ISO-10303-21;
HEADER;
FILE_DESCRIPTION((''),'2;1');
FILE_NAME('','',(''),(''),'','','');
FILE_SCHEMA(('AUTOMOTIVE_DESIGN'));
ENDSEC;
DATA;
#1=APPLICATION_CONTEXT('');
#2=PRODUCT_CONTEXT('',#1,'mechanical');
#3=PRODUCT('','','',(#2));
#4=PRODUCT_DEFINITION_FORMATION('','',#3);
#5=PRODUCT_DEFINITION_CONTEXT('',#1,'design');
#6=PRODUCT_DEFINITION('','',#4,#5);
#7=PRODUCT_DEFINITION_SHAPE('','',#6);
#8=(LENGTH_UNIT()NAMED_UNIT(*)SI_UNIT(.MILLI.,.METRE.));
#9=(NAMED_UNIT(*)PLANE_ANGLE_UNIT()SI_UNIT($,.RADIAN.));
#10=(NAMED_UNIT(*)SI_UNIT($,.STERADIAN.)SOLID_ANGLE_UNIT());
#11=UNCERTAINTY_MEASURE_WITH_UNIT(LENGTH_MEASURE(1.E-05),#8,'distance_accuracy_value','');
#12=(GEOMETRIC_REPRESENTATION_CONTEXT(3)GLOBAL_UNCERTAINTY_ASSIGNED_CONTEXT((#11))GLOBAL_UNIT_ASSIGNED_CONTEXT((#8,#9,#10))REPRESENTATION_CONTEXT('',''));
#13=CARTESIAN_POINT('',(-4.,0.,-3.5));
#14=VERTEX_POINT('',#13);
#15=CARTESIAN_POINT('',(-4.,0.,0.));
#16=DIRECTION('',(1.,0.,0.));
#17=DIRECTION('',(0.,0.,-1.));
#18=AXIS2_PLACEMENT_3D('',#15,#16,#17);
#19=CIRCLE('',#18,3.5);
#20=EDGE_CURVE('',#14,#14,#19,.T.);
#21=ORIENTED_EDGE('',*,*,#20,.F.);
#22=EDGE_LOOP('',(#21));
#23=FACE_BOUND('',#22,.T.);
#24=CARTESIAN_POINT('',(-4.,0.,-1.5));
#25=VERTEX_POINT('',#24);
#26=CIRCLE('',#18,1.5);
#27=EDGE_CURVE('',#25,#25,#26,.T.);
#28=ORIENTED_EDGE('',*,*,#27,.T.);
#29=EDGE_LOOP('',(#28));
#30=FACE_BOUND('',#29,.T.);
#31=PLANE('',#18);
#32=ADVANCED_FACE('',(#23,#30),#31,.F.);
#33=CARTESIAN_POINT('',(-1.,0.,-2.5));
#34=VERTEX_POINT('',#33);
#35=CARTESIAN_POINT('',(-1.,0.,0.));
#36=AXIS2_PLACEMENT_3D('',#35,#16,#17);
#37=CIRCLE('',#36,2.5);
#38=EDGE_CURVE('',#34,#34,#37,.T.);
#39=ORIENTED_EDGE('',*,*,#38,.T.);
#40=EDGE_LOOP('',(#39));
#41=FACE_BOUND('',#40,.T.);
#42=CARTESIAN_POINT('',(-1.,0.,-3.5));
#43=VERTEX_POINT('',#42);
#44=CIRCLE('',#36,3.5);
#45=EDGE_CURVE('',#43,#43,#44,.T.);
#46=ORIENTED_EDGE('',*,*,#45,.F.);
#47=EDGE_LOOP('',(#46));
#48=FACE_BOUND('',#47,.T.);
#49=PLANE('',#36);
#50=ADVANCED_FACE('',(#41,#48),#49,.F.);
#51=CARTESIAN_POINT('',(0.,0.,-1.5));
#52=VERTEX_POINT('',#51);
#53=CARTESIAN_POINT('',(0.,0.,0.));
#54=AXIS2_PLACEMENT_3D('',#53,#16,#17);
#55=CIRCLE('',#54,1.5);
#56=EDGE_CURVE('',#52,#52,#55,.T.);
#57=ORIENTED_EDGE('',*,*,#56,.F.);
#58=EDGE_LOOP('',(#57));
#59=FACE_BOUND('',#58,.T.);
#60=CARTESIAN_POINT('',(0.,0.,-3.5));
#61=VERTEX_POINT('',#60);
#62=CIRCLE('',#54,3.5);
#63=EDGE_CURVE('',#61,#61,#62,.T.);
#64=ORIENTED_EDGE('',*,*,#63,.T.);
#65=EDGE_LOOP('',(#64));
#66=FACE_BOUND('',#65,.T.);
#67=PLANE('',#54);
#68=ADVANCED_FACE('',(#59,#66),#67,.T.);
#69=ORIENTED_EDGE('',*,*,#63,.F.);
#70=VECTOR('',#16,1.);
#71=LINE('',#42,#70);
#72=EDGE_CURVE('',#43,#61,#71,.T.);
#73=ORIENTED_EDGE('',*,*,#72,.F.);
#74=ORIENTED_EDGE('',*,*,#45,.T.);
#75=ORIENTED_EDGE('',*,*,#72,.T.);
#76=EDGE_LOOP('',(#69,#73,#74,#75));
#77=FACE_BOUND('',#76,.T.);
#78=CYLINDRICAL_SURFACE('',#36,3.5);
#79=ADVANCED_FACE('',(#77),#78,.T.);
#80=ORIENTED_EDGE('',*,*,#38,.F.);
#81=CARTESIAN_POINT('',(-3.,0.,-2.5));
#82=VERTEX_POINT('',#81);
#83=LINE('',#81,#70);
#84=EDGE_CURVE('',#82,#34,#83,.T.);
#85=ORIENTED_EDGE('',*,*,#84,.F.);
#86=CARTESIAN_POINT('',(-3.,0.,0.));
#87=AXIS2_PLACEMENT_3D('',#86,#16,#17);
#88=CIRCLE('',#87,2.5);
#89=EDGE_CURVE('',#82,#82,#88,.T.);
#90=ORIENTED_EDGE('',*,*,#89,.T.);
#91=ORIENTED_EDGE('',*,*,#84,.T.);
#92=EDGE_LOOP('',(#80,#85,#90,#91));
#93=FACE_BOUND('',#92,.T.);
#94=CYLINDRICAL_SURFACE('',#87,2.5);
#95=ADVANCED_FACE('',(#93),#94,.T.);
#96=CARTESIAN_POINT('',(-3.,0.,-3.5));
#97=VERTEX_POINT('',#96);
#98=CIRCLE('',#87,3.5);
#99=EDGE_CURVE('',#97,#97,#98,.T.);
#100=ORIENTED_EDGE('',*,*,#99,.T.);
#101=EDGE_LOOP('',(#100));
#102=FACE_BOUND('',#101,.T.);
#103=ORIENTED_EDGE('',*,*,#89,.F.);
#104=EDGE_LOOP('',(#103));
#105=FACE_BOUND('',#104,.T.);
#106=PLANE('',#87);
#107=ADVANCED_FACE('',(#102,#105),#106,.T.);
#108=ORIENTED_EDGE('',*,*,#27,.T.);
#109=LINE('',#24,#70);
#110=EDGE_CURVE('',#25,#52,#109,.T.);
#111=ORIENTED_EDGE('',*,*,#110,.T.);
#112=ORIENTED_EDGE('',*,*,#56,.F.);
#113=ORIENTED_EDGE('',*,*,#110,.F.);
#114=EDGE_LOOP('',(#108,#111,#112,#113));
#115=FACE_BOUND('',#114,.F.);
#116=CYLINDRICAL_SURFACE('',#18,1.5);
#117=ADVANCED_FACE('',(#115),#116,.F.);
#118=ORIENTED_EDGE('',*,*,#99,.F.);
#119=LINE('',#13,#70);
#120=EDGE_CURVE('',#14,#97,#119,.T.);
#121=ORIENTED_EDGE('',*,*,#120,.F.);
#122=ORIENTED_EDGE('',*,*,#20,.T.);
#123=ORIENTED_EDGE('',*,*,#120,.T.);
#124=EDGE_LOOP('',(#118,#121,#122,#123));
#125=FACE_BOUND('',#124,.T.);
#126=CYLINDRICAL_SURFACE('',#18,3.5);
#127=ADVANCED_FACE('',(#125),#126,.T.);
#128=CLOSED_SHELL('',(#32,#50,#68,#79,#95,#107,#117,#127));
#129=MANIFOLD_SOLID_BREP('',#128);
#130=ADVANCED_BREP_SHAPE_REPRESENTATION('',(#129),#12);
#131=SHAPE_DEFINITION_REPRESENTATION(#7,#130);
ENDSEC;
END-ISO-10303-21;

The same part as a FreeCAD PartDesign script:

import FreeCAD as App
import Part
import Sketcher
from FreeCAD import Vector
Q = App.Units.Quantity


def add_polygon(sketch, points):
    """Adds a closed chain of lines whose ends are joined by coincident constraints."""
    first, n = sketch.GeometryCount, len(points)
    for a, b in zip(points, points[1:] + points[:1]):
        sketch.addGeometry(Part.LineSegment(App.Vector(*a, 0), App.Vector(*b, 0)), False)
    for i in range(n):
        sketch.addConstraint(Sketcher.Constraint("Coincident", first + i, 2, first + (i + 1) % n, 1))

doc = App.newDocument("Part")
body = doc.addObject("PartDesign::Body", "Body")

# Sketch on XZ plane
sketch1 = doc.addObject("Sketcher::SketchObject", "Sketch")
body.addObject(sketch1)
sketch1.AttachmentSupport = (doc.XZ_Plane, [""])
sketch1.MapMode = "FlatFace"
add_polygon(sketch1, [(-4, -3.5), (-4, -1.5), (0, -1.5), (0, -3.5), (-1, -3.5), (-1, -2.5), (-3, -2.5), (-3, -3.5)])  # lines 0-7
sketch1.addConstraint([
    Sketcher.Constraint("Vertical", 0),
    Sketcher.Constraint("Horizontal", 1),
    Sketcher.Constraint("Vertical", 2),
    Sketcher.Constraint("Horizontal", 3),
    Sketcher.Constraint("Vertical", 4),
    Sketcher.Constraint("Horizontal", 5),
    Sketcher.Constraint("Vertical", 6),
    Sketcher.Constraint("Horizontal", 7),
    Sketcher.Constraint("PointOnObject", 1, 2, -2),
    Sketcher.Constraint("Horizontal", 3, 2, 6, 2),
    Sketcher.Constraint("Equal", 3, 7),
    Sketcher.Constraint("Equal", 5, 0),
    Sketcher.Constraint("Equal", 7, 4),
    Sketcher.Constraint("DistanceX", 3, 2, 3, 1, Q("1 mm")),
    Sketcher.Constraint("DistanceX", 5, 2, 5, 1, Q("2 mm")),
    Sketcher.Constraint("DistanceY", 0, 2, -1, 1, Q("1.5 mm")),
])
revolution = doc.addObject("PartDesign::Revolution", "Revolution")
body.addObject(revolution)
revolution.Profile = sketch1
revolution.ReferenceAxis = (sketch1, ["H_Axis"])
revolution.Angle = 360

doc.recompute()
